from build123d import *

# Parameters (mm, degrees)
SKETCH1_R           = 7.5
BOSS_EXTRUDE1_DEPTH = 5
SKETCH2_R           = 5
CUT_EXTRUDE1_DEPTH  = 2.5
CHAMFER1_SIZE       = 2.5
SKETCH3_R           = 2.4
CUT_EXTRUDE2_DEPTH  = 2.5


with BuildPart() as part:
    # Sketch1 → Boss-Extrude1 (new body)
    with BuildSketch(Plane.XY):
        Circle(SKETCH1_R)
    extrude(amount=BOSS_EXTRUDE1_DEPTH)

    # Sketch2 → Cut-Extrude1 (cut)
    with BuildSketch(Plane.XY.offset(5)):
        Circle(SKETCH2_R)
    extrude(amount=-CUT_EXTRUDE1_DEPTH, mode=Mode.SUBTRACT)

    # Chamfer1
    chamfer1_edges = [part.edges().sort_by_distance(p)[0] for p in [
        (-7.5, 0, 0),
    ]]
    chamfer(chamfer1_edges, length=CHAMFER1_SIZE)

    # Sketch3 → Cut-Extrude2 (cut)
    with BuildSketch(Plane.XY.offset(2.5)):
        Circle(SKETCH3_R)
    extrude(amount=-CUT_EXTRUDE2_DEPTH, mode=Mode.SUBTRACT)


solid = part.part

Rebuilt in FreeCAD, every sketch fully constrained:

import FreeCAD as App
import Part
import Sketcher


def edges_at(feature, points):
    """Names of the edges that pass closest to the given points."""
    edges = feature.Shape.Edges
    near = lambda p: min(range(len(edges)), key=lambda i: edges[i].distToShape(Part.Vertex(*p))[0])
    return sorted({f"Edge{near(p) + 1}" for p in points})

doc = App.newDocument("Part")
body = doc.addObject("PartDesign::Body", "Body")

# Sketch on XY plane
sketch1 = doc.addObject("Sketcher::SketchObject", "Sketch")
body.addObject(sketch1)
sketch1.AttachmentSupport = (doc.XY_Plane, [""])
sketch1.MapMode = "FlatFace"
sketch1.addGeometry(Part.Circle(App.Vector(0, 0, 0), App.Vector(0, 0, 1), 7.5), False)
sketch1.addConstraint([
    Sketcher.Constraint("Coincident", 0, 3, -1, 1),
    Sketcher.Constraint("Diameter", 0, 15.0),
])
pad1 = doc.addObject("PartDesign::Pad", "Pad")
body.addObject(pad1)
pad1.Profile = sketch1
pad1.Length = 5

# Sketch on XY plane
sketch2 = doc.addObject("Sketcher::SketchObject", "Sketch001")
body.addObject(sketch2)
sketch2.AttachmentSupport = (doc.XY_Plane, [""])
sketch2.MapMode = "FlatFace"
sketch2.AttachmentOffset = App.Placement(App.Vector(0, 0, 5), App.Rotation())
sketch2.addGeometry(Part.Circle(App.Vector(0, 0, 0), App.Vector(0, 0, 1), 5), False)
sketch2.addConstraint([
    Sketcher.Constraint("Coincident", 0, 3, -1, 1),
    Sketcher.Constraint("Diameter", 0, 10.0),
])
pocket1 = doc.addObject("PartDesign::Pocket", "Pocket")
body.addObject(pocket1)
pocket1.Profile = sketch2
pocket1.Length = 2.5
doc.recompute()

chamfer = doc.addObject("PartDesign::Chamfer", "Chamfer")
body.addObject(chamfer)
chamfer.Base = (pocket1, edges_at(pocket1, [(-7.5, 0, 0)]))
chamfer.Size = 2.5

# Sketch on XY plane
sketch3 = doc.addObject("Sketcher::SketchObject", "Sketch002")
body.addObject(sketch3)
sketch3.AttachmentSupport = (doc.XY_Plane, [""])
sketch3.MapMode = "FlatFace"
sketch3.AttachmentOffset = App.Placement(App.Vector(0, 0, 2.5), App.Rotation())
sketch3.addGeometry(Part.Circle(App.Vector(0, 0, 0), App.Vector(0, 0, 1), 2.4), False)
sketch3.addConstraint([
    Sketcher.Constraint("Coincident", 0, 3, -1, 1),
    Sketcher.Constraint("Diameter", 0, 4.8),
])
pocket2 = doc.addObject("PartDesign::Pocket", "Pocket001")
body.addObject(pocket2)
pocket2.Profile = sketch3
pocket2.Length = 2.5

doc.recompute()
